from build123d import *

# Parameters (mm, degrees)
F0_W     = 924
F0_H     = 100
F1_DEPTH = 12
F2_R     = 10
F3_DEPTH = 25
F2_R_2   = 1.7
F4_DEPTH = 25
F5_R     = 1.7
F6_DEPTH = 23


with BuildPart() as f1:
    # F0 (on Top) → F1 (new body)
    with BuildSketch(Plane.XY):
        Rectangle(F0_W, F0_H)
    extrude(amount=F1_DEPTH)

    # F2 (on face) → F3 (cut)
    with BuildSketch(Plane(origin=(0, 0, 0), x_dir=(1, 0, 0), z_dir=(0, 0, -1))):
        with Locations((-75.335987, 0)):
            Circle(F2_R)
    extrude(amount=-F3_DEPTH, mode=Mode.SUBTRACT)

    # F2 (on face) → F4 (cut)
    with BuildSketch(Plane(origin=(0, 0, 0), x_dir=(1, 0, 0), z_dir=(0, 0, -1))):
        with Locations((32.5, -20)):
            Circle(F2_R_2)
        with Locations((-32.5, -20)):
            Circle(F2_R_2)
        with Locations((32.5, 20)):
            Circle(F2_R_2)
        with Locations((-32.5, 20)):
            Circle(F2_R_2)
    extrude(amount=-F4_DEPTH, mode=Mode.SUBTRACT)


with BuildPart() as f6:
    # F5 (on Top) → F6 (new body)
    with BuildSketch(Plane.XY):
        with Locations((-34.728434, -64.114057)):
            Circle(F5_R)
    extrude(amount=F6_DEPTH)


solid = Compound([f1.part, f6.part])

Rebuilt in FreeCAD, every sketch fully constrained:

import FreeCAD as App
import Part
import Sketcher
from FreeCAD import Vector


def add_polygon(sketch, points):
    """Adds a closed chain of lines whose ends are joined by coincident constraints."""
    first, n = sketch.GeometryCount, len(points)
    for a, b in zip(points, points[1:] + points[:1]):
        sketch.addGeometry(Part.LineSegment(App.Vector(*a, 0), App.Vector(*b, 0)), False)
    for i in range(n):
        sketch.addConstraint(Sketcher.Constraint("Coincident", first + i, 2, first + (i + 1) % n, 1))

doc = App.newDocument("Part")
body = doc.addObject("PartDesign::Body", "Body")

# Sketch on XY plane
sketch1 = body.newObject("Sketcher::SketchObject", "Sketch")
sketch1.AttachmentSupport = (doc.getObject("XY_Plane"), [""])
sketch1.MapMode = "FlatFace"
add_polygon(sketch1, [(-462, 50), (-462, -50), (462, -50), (462, 50)])  # lines 0-3
sketch1.addConstraint(Sketcher.Constraint("Vertical", 0))
sketch1.addConstraint(Sketcher.Constraint("Horizontal", 1))
sketch1.addConstraint(Sketcher.Constraint("Vertical", 2))
sketch1.addConstraint(Sketcher.Constraint("Horizontal", 3))
sketch1.addConstraint(Sketcher.Constraint("Symmetric", 0, 2, 2, 2, -1, 1))
sketch1.addConstraint(Sketcher.Constraint("DistanceX", 1, 1, 1, 2, 924.0))
sketch1.addConstraint(Sketcher.Constraint("DistanceY", 0, 2, 0, 1, 100.0))
pad1 = body.newObject("PartDesign::Pad", "Pad")
pad1.Profile = sketch1
pad1.Length = 12

# Sketch on XY plane
sketch2 = body.newObject("Sketcher::SketchObject", "Sketch001")
sketch2.AttachmentSupport = (doc.getObject("XY_Plane"), [""])
sketch2.MapMode = "FlatFace"
sketch2.addGeometry(Part.Circle(Vector(-75, 0, 0), Vector(0, 0, 1), 10), False)
sketch2.addConstraint(Sketcher.Constraint("PointOnObject", 0, 3, -1))
sketch2.addConstraint(Sketcher.Constraint("Diameter", 0, 20.0))
sketch2.addConstraint(Sketcher.Constraint("DistanceX", 0, 3, -1, 1, 75.335987))
pocket1 = body.newObject("PartDesign::Pocket", "Pocket")
pocket1.Profile = sketch2
pocket1.Length = 25
pocket1.Reversed = True

# Sketch on XY plane
sketch3 = body.newObject("Sketcher::SketchObject", "Sketch002")
sketch3.AttachmentSupport = (doc.getObject("XY_Plane"), [""])
sketch3.MapMode = "FlatFace"
sketch3.addGeometry(Part.Circle(Vector(32.5, 20, 0), Vector(0, 0, 1), 1.7), False)
sketch3.addGeometry(Part.Circle(Vector(-32.5, 20, 0), Vector(0, 0, 1), 1.7), False)
sketch3.addGeometry(Part.Circle(Vector(32.5, -20, 0), Vector(0, 0, 1), 1.7), False)
sketch3.addGeometry(Part.Circle(Vector(-32.5, -20, 0), Vector(0, 0, 1), 1.7), False)
sketch3.addConstraint(Sketcher.Constraint("Equal", 0, 1))
sketch3.addConstraint(Sketcher.Constraint("Equal", 1, 2))
sketch3.addConstraint(Sketcher.Constraint("Equal", 2, 3))
sketch3.addConstraint(Sketcher.Constraint("Symmetric", 1, 3, 2, 3, -1, 1))
sketch3.addConstraint(Sketcher.Constraint("Symmetric", 0, 3, 3, 3, -1, 1))
sketch3.addConstraint(Sketcher.Constraint("Symmetric", 0, 3, 1, 3, -2))
sketch3.addConstraint(Sketcher.Constraint("Diameter", 0, 3.4))
sketch3.addConstraint(Sketcher.Constraint("DistanceY", -1, 1, 0, 3, 20.0))
sketch3.addConstraint(Sketcher.Constraint("DistanceX", 1, 3, 0, 3, 65.0))
pocket2 = body.newObject("PartDesign::Pocket", "Pocket001")
pocket2.Profile = sketch3
pocket2.Length = 25
pocket2.Reversed = True
body2 = doc.addObject("PartDesign::Body", "Body001")

# Sketch on XY plane
sketch4 = body2.newObject("Sketcher::SketchObject", "Sketch003")
sketch4.AttachmentSupport = (doc.getObject("XY_Plane001"), [""])
sketch4.MapMode = "FlatFace"
sketch4.addGeometry(Part.Circle(Vector(-34.7, -64.1, 0), Vector(0, 0, 1), 1.7), False)
sketch4.addConstraint(Sketcher.Constraint("Diameter", 0, 3.4))
sketch4.addConstraint(Sketcher.Constraint("DistanceX", 0, 3, -1, 1, 34.728434))
sketch4.addConstraint(Sketcher.Constraint("DistanceY", 0, 3, -1, 1, 64.114057))
pad2 = body2.newObject("PartDesign::Pad", "Pad001")
pad2.Profile = sketch4
pad2.Length = 23

doc.recompute()
